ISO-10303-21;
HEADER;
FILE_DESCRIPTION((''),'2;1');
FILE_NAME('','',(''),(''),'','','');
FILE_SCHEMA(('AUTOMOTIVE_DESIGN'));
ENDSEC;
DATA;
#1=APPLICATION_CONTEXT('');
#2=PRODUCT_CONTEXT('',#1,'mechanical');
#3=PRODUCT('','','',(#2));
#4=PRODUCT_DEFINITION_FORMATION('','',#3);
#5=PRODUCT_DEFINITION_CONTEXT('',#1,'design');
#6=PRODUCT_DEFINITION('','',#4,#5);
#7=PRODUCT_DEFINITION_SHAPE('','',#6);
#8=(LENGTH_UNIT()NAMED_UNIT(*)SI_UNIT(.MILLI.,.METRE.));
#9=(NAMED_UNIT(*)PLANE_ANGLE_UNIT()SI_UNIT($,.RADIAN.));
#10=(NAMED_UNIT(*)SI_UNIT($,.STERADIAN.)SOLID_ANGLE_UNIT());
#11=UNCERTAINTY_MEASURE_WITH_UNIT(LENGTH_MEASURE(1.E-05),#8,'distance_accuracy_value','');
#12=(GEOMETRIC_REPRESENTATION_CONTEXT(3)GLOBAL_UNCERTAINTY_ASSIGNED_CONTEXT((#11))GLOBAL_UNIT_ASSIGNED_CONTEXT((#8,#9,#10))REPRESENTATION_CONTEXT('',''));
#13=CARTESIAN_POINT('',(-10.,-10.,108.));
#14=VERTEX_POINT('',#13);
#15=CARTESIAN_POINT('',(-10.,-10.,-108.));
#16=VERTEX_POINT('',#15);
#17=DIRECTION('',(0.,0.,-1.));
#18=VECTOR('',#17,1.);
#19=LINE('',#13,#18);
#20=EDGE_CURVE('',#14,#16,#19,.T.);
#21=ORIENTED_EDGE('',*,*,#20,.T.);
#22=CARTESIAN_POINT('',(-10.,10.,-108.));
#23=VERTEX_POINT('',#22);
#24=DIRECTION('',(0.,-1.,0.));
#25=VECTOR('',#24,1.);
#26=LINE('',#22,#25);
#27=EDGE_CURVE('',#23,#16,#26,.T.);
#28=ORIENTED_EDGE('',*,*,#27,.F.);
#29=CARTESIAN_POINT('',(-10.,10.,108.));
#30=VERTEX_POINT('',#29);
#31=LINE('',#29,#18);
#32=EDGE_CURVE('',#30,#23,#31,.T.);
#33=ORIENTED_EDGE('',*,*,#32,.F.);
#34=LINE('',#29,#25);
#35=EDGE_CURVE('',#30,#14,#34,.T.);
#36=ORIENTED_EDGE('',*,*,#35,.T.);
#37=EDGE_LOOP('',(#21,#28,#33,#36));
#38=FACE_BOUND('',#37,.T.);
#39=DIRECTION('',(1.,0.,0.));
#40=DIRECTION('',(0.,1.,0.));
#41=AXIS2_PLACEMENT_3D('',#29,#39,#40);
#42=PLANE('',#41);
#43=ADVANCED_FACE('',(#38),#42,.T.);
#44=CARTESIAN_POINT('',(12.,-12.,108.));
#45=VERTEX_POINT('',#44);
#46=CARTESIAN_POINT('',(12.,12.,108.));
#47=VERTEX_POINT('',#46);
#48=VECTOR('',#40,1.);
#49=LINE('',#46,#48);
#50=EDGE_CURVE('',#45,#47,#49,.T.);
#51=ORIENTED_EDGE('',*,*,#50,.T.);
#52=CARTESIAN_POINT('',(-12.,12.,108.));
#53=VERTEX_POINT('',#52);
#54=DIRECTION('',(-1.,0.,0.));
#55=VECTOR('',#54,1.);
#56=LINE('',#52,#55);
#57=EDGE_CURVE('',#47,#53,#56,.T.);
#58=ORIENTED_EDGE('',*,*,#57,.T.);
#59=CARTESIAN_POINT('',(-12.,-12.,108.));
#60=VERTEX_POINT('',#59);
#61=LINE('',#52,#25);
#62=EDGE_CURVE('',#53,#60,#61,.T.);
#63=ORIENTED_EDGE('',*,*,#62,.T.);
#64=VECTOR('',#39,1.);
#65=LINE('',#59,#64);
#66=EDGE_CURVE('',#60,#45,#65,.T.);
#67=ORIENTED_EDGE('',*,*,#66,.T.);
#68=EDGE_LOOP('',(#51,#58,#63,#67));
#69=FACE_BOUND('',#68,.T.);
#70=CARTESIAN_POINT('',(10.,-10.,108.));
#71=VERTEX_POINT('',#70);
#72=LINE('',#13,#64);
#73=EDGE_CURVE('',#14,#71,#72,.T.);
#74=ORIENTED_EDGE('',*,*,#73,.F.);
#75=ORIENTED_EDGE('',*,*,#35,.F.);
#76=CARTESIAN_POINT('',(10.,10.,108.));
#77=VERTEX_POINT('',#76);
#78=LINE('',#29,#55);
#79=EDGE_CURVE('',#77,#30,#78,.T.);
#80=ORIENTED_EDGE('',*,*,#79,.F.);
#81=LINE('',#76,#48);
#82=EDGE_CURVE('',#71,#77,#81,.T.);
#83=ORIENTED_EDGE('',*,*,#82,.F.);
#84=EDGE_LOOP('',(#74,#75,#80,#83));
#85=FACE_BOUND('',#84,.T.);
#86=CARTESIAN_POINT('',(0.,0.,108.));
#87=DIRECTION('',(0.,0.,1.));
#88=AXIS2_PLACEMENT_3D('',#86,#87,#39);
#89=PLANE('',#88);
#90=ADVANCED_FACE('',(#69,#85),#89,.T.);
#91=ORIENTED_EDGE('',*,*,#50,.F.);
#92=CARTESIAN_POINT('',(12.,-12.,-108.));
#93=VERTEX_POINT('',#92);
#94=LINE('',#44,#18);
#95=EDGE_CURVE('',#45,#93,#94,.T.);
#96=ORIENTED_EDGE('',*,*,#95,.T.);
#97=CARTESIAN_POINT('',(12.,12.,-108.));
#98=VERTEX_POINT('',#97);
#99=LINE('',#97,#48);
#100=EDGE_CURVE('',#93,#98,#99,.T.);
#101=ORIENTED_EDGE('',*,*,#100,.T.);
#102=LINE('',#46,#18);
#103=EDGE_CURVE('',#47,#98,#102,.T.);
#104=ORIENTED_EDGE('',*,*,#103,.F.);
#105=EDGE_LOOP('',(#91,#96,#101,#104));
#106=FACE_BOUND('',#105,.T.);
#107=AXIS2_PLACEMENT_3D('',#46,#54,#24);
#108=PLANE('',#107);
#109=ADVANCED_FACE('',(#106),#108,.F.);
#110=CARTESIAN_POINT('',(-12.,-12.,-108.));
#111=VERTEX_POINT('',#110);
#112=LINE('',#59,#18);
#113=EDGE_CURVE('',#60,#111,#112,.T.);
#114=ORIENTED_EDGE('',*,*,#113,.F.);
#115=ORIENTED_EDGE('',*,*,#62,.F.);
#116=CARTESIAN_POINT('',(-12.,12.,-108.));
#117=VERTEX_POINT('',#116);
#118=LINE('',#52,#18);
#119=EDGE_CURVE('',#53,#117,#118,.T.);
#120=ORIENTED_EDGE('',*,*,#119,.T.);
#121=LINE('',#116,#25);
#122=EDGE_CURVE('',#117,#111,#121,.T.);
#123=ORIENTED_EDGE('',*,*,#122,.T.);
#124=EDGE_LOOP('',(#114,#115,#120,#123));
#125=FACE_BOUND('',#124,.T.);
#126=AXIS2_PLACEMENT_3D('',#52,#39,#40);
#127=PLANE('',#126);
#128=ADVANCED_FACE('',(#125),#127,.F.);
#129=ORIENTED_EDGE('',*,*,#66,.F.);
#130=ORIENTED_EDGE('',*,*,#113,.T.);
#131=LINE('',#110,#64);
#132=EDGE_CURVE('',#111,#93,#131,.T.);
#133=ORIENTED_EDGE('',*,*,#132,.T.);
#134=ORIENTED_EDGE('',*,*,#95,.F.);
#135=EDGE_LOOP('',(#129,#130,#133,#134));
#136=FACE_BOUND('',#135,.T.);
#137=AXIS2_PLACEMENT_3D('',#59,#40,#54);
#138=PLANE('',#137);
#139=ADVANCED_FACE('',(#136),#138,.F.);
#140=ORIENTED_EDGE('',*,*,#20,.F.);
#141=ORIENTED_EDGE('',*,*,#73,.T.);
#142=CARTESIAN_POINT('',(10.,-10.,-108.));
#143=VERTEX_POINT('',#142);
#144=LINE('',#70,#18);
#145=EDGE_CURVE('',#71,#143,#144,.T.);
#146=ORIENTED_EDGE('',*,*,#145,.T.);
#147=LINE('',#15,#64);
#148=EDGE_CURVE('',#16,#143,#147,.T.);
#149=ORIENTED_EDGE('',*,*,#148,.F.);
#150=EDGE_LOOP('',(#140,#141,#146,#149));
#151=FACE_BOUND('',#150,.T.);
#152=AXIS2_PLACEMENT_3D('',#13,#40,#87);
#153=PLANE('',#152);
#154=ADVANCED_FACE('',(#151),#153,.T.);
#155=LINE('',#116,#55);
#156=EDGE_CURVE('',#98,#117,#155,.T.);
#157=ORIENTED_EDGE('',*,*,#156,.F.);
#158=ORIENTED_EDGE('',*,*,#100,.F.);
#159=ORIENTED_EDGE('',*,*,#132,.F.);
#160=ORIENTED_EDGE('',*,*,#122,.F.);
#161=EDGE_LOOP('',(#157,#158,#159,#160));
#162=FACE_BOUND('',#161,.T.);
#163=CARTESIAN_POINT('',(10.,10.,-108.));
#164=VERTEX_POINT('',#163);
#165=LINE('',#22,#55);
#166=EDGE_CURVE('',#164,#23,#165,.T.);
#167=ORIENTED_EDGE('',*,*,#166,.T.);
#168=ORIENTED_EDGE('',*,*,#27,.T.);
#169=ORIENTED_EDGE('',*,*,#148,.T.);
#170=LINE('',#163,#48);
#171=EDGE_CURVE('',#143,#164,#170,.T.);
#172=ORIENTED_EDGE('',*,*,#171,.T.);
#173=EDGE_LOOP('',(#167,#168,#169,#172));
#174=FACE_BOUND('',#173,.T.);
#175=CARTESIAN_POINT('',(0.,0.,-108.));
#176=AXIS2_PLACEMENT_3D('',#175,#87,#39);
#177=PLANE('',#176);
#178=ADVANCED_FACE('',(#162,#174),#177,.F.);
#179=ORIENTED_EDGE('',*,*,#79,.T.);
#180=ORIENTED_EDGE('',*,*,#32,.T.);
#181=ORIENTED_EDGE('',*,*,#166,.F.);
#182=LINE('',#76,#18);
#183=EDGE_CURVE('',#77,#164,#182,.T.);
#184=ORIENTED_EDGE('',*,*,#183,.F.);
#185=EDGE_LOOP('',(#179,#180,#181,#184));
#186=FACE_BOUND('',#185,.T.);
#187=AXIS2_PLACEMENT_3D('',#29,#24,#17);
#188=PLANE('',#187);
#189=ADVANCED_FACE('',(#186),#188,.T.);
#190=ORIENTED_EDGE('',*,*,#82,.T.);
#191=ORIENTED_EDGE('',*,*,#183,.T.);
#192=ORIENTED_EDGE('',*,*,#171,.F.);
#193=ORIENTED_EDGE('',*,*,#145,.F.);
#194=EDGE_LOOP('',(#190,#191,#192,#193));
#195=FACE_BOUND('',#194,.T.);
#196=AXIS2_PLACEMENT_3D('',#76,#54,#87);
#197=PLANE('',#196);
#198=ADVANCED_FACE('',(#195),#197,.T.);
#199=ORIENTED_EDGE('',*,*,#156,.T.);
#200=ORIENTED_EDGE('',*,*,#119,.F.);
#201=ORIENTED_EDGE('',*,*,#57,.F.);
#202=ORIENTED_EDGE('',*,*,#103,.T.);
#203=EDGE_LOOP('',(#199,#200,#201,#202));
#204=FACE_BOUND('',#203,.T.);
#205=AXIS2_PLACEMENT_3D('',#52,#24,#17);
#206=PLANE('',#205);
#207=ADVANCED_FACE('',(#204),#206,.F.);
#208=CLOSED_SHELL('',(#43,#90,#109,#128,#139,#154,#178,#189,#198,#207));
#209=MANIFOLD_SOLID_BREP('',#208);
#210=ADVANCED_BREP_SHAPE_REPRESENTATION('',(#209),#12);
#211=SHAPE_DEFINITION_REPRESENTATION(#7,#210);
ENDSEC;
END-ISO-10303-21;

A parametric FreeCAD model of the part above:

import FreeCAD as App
import Part
import Sketcher
from FreeCAD import Vector


def add_polygon(sketch, points):
    """Adds a closed chain of lines whose ends are joined by coincident constraints."""
    first, n = sketch.GeometryCount, len(points)
    for a, b in zip(points, points[1:] + points[:1]):
        sketch.addGeometry(Part.LineSegment(App.Vector(*a, 0), App.Vector(*b, 0)), False)
    for i in range(n):
        sketch.addConstraint(Sketcher.Constraint("Coincident", first + i, 2, first + (i + 1) % n, 1))

doc = App.newDocument("Part")
body = doc.addObject("PartDesign::Body", "Body")

sketch1 = body.newObject("Sketcher::SketchObject", "Sketch")
sketch1.AttachmentSupport = (doc.getObject("XY_Plane"), [""])
sketch1.MapMode = "FlatFace"
add_polygon(sketch1, [(-12, 12), (-12, -12), (12, -12), (12, 12)])
add_polygon(sketch1, [(10, -10), (-10, -10), (-10, 10), (10, 10)])
sketch1.addConstraint(Sketcher.Constraint("Vertical", 0))
sketch1.addConstraint(Sketcher.Constraint("Horizontal", 1))
sketch1.addConstraint(Sketcher.Constraint("Vertical", 2))
sketch1.addConstraint(Sketcher.Constraint("Horizontal", 3))
sketch1.addConstraint(Sketcher.Constraint("Horizontal", 4))
sketch1.addConstraint(Sketcher.Constraint("Vertical", 5))
sketch1.addConstraint(Sketcher.Constraint("Horizontal", 6))
sketch1.addConstraint(Sketcher.Constraint("Vertical", 7))
sketch1.addConstraint(Sketcher.Constraint("Symmetric", 0, 2, 2, 2, -1, 1))
sketch1.addConstraint(Sketcher.Constraint("Symmetric", 4, 2, 6, 2, -1, 1))
sketch1.addConstraint(Sketcher.Constraint("Equal", 3, 0))
sketch1.addConstraint(Sketcher.Constraint("Equal", 6, 5))
sketch1.addConstraint(Sketcher.Constraint("DistanceX", 1, 1, 1, 2, 24.0))
sketch1.addConstraint(Sketcher.Constraint("DistanceX", 4, 2, 4, 1, 20.0))
pad1 = body.newObject("PartDesign::Pad", "Pad")
pad1.Profile = sketch1
pad1.Length = 216
pad1.Midplane = True

doc.recompute()
